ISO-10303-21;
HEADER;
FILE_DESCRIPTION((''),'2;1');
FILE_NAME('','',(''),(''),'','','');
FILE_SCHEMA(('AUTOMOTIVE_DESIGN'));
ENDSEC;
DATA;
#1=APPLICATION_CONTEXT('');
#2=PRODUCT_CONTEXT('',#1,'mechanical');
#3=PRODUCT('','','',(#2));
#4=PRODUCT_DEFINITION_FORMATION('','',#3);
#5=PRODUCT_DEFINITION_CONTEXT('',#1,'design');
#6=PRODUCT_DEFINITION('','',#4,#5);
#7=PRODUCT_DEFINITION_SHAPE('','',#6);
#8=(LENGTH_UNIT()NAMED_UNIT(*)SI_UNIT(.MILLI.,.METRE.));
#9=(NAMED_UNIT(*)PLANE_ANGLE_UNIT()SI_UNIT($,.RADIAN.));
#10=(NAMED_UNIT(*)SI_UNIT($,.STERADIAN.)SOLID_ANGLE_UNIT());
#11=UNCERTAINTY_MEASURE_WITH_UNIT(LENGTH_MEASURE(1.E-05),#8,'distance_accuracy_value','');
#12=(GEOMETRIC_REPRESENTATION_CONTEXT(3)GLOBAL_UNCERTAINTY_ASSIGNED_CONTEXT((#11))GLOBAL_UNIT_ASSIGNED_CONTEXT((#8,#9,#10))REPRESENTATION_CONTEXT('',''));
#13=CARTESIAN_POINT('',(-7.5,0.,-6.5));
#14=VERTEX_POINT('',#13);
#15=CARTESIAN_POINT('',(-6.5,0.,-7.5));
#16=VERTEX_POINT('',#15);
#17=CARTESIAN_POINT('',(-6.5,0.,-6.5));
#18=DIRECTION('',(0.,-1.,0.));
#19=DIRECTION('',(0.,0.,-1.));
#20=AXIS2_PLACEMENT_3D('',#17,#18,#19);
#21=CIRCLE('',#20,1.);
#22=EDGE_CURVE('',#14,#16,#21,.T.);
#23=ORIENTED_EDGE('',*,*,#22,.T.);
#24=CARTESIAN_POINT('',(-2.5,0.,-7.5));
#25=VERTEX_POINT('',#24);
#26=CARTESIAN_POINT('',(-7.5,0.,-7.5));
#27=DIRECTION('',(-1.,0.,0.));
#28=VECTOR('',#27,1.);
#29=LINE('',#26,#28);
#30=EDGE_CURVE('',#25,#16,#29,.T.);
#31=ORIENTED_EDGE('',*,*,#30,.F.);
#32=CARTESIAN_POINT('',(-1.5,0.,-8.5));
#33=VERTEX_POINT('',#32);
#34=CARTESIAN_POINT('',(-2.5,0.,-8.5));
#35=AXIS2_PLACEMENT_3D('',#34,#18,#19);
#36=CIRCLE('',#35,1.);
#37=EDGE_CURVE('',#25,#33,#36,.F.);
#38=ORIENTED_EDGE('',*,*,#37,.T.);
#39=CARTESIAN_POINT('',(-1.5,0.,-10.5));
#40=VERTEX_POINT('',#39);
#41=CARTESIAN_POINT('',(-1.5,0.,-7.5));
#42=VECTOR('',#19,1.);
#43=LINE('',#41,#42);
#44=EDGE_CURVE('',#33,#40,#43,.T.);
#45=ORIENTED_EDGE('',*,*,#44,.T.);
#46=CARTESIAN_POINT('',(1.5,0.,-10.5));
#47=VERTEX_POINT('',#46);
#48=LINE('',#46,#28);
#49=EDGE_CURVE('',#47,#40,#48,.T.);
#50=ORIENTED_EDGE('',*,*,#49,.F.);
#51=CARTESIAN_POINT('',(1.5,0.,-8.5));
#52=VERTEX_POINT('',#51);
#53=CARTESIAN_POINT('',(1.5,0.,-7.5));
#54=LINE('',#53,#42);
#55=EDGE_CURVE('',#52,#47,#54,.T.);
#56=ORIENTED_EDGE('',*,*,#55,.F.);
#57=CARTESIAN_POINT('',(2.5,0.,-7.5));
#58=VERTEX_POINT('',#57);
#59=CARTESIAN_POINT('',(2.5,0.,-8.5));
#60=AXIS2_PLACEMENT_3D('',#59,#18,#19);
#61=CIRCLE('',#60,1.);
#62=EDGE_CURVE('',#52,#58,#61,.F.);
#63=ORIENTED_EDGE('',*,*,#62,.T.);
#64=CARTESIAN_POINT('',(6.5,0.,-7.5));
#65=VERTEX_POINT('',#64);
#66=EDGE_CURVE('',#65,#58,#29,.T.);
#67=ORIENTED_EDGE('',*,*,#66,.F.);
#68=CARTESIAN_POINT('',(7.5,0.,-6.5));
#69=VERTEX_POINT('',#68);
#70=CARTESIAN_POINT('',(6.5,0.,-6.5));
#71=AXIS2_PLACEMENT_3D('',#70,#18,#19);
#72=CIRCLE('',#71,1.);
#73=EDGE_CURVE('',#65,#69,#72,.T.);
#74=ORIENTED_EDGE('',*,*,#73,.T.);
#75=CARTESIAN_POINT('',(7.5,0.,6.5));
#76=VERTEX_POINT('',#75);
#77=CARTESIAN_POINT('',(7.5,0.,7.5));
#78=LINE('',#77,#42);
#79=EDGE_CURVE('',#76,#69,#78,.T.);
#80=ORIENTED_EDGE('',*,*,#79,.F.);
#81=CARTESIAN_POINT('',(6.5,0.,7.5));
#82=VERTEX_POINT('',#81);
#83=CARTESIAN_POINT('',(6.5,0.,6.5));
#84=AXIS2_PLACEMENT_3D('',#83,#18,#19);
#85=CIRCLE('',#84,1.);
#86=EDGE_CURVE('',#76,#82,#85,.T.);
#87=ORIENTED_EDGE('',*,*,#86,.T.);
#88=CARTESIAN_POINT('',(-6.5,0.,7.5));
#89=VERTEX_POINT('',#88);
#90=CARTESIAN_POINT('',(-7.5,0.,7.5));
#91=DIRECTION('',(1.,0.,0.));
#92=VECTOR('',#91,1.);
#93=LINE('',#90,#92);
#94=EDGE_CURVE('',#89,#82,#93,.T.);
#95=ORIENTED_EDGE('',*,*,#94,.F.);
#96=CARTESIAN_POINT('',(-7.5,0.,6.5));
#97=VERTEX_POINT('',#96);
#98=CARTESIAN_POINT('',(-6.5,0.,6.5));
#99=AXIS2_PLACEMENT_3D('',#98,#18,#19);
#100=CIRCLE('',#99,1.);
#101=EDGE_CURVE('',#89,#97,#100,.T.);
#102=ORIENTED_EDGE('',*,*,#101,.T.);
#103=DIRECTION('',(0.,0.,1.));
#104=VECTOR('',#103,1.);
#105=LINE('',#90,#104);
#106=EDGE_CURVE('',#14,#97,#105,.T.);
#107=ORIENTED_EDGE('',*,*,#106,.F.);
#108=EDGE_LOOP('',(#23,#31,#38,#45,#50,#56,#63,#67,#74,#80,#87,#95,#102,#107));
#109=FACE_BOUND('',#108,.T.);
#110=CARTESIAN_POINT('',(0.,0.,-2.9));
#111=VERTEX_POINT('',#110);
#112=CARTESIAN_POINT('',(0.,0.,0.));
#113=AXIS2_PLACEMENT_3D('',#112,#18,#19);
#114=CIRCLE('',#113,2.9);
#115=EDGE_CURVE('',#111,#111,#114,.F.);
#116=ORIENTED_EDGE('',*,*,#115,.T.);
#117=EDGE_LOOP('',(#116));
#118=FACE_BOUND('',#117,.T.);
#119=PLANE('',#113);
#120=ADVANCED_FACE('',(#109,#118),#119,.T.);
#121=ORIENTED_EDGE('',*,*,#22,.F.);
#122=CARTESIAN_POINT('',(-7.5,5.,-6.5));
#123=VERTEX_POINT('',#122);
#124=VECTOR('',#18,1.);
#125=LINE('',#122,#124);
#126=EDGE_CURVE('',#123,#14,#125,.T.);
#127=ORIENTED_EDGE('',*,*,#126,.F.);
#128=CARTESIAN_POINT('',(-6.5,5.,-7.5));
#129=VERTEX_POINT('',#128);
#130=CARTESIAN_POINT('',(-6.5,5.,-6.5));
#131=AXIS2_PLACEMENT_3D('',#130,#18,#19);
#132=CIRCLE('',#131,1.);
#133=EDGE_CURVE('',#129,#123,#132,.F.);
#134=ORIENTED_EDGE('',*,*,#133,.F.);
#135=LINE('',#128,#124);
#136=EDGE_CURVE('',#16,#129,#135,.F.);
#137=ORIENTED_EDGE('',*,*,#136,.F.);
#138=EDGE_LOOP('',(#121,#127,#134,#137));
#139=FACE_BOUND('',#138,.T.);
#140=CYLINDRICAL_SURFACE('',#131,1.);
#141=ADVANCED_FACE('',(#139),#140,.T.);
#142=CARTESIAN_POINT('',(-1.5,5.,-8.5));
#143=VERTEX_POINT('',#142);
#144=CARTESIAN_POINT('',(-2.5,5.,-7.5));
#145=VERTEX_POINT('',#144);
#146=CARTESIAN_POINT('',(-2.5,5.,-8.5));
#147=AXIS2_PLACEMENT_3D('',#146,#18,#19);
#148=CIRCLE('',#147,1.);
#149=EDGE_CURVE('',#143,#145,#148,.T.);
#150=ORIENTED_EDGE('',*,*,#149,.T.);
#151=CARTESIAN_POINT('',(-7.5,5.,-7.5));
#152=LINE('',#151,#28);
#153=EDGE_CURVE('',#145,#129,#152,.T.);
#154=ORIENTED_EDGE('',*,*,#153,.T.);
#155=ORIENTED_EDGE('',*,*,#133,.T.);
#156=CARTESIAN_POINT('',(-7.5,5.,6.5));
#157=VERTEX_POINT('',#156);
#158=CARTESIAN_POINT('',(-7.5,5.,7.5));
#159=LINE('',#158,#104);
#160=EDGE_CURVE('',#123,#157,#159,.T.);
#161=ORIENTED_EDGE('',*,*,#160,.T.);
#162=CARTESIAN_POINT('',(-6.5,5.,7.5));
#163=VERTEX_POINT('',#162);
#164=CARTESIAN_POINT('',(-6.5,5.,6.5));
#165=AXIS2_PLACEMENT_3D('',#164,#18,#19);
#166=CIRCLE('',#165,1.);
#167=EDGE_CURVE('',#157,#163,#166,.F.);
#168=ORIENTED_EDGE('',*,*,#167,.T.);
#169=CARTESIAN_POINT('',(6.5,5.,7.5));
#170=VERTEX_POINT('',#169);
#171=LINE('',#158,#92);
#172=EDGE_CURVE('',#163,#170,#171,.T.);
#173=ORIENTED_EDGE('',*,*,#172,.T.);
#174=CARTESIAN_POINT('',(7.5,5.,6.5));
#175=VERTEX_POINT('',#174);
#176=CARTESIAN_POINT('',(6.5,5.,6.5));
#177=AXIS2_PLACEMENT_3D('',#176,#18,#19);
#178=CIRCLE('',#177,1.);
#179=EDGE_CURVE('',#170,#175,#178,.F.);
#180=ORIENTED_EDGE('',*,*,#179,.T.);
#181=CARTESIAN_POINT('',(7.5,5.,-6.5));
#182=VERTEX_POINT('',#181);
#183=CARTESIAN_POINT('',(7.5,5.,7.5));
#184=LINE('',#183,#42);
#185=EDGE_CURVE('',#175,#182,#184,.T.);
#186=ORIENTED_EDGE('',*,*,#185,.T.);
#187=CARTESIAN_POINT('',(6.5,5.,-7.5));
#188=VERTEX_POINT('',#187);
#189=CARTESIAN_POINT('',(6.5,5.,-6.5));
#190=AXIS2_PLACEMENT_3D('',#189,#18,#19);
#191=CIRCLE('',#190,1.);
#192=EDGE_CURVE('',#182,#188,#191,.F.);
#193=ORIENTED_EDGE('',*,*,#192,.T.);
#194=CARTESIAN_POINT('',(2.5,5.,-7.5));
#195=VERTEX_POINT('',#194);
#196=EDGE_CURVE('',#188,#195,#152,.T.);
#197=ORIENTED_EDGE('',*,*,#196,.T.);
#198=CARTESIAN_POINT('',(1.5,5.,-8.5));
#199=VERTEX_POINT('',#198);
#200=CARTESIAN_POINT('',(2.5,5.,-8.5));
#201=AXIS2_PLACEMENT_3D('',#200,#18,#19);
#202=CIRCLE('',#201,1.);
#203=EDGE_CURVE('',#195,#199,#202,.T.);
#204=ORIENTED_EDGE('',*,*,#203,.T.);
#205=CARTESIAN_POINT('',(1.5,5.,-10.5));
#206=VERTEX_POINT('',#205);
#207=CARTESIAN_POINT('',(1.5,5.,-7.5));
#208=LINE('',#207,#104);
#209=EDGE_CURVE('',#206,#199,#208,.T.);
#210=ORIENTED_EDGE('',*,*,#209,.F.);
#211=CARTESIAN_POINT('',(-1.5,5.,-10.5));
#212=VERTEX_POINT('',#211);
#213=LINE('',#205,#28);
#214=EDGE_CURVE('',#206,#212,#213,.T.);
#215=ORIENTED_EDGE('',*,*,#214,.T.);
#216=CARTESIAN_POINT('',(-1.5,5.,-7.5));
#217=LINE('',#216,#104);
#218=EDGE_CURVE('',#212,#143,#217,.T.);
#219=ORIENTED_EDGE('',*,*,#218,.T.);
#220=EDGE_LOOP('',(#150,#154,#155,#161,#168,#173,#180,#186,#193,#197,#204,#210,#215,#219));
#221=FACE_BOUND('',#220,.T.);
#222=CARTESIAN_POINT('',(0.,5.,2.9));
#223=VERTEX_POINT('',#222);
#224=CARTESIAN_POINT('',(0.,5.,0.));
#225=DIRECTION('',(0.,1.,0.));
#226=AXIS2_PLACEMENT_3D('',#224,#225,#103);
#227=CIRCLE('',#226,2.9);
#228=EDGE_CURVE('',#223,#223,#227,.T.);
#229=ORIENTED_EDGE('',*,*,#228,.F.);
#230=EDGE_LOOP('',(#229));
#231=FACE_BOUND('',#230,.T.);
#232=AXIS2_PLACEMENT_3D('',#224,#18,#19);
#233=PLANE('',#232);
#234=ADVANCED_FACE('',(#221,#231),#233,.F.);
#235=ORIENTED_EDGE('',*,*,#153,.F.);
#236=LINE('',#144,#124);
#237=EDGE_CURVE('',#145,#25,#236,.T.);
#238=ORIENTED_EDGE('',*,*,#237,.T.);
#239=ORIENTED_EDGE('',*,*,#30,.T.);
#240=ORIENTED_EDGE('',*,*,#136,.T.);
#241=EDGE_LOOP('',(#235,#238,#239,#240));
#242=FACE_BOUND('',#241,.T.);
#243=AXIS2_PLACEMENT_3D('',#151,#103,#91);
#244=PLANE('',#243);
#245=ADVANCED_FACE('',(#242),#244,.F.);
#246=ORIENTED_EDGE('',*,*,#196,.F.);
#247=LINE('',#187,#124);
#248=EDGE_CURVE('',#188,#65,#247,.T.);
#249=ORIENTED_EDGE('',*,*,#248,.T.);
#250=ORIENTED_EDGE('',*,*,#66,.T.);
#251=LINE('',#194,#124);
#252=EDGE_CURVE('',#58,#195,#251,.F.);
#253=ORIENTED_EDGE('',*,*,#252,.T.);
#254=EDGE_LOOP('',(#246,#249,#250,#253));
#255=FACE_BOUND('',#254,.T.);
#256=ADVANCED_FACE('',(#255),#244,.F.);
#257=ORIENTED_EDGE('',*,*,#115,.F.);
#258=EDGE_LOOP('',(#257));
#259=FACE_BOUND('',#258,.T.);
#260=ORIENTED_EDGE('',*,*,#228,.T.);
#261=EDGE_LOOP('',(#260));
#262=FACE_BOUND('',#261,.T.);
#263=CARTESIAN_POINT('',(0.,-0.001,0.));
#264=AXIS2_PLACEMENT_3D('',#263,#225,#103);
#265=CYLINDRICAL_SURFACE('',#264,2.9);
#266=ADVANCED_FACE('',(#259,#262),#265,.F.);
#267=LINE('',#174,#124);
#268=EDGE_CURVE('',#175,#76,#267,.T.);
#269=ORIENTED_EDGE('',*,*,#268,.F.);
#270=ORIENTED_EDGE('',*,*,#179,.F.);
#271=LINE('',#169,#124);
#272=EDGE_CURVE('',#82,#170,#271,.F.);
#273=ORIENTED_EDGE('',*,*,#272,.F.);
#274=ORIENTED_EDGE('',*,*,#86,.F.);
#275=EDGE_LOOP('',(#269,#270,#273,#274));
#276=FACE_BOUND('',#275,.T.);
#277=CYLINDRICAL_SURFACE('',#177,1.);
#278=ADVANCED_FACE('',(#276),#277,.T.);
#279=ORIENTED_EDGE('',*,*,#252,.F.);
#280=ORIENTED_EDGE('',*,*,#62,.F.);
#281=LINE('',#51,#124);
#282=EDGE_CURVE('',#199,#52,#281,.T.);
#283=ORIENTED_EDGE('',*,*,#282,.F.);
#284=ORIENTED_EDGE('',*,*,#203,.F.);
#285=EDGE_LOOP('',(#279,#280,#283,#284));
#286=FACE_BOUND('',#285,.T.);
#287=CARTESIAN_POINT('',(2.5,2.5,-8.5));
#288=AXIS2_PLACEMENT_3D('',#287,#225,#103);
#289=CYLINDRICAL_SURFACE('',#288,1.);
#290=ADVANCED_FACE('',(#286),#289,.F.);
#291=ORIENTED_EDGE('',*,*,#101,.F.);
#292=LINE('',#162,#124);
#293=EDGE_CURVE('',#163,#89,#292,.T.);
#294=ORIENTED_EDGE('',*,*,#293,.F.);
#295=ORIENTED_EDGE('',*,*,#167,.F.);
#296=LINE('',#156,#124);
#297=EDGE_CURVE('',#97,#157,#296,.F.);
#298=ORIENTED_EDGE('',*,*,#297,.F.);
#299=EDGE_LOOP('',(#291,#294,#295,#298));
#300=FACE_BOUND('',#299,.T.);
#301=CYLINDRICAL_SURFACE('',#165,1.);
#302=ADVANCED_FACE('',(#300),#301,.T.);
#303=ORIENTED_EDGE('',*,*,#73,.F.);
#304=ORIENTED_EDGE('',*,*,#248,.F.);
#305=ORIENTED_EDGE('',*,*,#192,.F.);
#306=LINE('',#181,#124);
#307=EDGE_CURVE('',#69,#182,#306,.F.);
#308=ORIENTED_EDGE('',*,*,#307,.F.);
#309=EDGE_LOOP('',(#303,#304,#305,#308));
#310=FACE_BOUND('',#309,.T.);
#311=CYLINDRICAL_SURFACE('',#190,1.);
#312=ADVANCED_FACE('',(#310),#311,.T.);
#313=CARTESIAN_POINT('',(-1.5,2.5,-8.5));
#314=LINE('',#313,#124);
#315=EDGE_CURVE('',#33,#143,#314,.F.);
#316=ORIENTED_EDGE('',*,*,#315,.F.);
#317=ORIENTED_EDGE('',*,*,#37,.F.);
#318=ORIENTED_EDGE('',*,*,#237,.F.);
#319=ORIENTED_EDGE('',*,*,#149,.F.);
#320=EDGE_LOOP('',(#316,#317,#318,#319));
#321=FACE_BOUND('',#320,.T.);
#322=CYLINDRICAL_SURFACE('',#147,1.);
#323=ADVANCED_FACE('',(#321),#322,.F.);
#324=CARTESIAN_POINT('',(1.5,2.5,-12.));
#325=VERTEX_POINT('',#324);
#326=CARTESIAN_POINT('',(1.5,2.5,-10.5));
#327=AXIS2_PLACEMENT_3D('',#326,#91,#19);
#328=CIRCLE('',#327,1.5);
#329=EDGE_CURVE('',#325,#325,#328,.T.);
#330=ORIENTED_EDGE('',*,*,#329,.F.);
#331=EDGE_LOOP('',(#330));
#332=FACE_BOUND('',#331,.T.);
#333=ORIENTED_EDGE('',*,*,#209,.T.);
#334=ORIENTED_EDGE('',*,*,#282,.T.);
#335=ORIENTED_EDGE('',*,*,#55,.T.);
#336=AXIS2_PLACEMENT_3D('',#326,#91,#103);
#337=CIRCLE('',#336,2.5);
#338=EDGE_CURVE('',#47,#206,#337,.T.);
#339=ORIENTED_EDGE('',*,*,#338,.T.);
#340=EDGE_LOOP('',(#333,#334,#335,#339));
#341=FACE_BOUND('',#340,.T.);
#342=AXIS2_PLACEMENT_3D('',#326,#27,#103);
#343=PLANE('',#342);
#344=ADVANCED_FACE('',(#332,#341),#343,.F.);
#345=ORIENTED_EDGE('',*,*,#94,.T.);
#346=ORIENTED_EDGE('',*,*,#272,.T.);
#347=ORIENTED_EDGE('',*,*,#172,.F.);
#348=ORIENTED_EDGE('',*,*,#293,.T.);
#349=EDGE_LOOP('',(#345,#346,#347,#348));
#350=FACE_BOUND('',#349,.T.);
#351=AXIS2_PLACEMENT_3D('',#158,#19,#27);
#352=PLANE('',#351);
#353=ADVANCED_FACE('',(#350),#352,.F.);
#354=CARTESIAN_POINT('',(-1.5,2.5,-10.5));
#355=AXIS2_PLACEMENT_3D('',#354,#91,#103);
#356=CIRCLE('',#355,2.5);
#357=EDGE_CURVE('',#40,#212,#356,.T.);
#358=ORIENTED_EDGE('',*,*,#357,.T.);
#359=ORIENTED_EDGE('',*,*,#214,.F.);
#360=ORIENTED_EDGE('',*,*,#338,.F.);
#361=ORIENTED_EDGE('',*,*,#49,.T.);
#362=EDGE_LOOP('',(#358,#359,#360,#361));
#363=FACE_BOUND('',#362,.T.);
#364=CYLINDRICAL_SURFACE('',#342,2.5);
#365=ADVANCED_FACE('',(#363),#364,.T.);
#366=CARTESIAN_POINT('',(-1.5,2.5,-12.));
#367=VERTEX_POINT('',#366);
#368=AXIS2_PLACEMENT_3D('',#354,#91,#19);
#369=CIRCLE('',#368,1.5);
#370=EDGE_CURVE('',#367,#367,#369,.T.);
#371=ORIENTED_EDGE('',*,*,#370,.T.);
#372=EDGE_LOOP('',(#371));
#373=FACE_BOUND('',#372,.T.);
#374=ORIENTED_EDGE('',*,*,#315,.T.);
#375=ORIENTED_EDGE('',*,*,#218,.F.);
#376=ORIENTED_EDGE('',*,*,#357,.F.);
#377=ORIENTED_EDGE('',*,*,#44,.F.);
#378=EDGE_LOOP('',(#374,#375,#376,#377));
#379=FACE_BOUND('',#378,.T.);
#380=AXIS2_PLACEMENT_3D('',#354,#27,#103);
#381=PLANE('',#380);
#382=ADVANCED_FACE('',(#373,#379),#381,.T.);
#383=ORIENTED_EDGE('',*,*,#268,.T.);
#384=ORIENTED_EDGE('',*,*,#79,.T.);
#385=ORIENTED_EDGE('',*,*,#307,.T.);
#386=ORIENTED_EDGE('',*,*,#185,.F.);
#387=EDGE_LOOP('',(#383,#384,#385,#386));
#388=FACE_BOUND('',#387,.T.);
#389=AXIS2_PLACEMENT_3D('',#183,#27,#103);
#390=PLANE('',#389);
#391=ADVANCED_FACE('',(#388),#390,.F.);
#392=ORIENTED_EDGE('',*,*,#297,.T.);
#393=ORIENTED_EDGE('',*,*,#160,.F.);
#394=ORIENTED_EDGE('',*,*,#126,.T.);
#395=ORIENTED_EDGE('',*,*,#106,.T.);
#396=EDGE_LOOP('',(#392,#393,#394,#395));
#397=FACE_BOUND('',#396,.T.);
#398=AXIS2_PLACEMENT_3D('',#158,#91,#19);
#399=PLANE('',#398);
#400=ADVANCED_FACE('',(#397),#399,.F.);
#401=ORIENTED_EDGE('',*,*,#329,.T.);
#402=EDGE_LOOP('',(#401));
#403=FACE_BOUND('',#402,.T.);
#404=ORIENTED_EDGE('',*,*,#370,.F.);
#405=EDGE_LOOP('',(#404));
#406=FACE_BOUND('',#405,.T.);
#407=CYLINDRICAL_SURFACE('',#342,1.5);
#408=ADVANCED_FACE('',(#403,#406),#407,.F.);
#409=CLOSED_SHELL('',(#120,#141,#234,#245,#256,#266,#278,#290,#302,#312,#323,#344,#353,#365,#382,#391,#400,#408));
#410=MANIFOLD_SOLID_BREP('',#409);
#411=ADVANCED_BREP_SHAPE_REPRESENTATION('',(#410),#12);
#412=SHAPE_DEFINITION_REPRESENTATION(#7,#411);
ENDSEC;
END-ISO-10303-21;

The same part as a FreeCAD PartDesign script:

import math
import FreeCAD as App
import Part
import Sketcher
Q = App.Units.Quantity


def edges_at(feature, points):
    """Names of the edges that pass closest to the given points."""
    edges = feature.Shape.Edges
    near = lambda p: min(range(len(edges)), key=lambda i: edges[i].distToShape(Part.Vertex(*p))[0])
    return sorted({f"Edge{near(p) + 1}" for p in points})

doc = App.newDocument("Part")
body = doc.addObject("PartDesign::Body", "Body")

# Sketch on XZ plane
sketch1 = body.newObject("Sketcher::SketchObject", "Sketch")
sketch1.AttachmentSupport = (doc.getObject("XZ_Plane"), [""])
sketch1.MapMode = "FlatFace"
sketch1.addGeometry(Part.LineSegment(App.Vector(-7.5, -7.5, 0), App.Vector(-7.5, 7.5, 0)), False)
sketch1.addGeometry(Part.LineSegment(App.Vector(-7.5, 7.5, 0), App.Vector(7.5, 7.5, 0)), False)
sketch1.addGeometry(Part.LineSegment(App.Vector(7.5, 7.5, 0), App.Vector(7.5, -7.5, 0)), False)
sketch1.addGeometry(Part.LineSegment(App.Vector(7.5, -7.5, 0), App.Vector(-7.5, -7.5, 0)), False)
sketch1.addConstraint(Sketcher.Constraint("Coincident", 0, 2, 1, 1))
sketch1.addConstraint(Sketcher.Constraint("Coincident", 1, 2, 2, 1))
sketch1.addConstraint(Sketcher.Constraint("Coincident", 2, 2, 3, 1))
sketch1.addConstraint(Sketcher.Constraint("Coincident", 3, 2, 0, 1))
sketch1.addConstraint(Sketcher.Constraint("Vertical", 0))
sketch1.addConstraint(Sketcher.Constraint("Horizontal", 1))
sketch1.addConstraint(Sketcher.Constraint("Vertical", 2))
sketch1.addConstraint(Sketcher.Constraint("Horizontal", 3))
sketch1.addConstraint(Sketcher.Constraint("Symmetric", 0, 2, 2, 2, -1, 1))
sketch1.addConstraint(Sketcher.Constraint("Equal", 3, 0))
sketch1.addConstraint(Sketcher.Constraint("DistanceX", 1, 1, 1, 2, Q("15 mm")))
pad1 = body.newObject("PartDesign::Pad", "Pad")
pad1.Profile = sketch1
pad1.Length = 5
pad1.Reversed = True

# Sketch on YZ plane
sketch2 = body.newObject("Sketcher::SketchObject", "Sketch001")
sketch2.AttachmentSupport = (doc.getObject("YZ_Plane"), [""])
sketch2.MapMode = "FlatFace"
sketch2.addGeometry(Part.LineSegment(App.Vector(5, -10.5, 0), App.Vector(5, -7.5, 0)), False)
sketch2.addGeometry(Part.LineSegment(App.Vector(5, -7.5, 0), App.Vector(0, -7.5, 0)), False)
sketch2.addGeometry(Part.LineSegment(App.Vector(0, -7.5, 0), App.Vector(0, -10.5, 0)), False)
sketch2.addGeometry(Part.ArcOfCircle(Part.Circle(App.Vector(2.5, -10.5, 0), App.Vector(0, 0, 1), 2.5), math.radians(180), math.radians(360)), False)
sketch2.addGeometry(Part.Circle(App.Vector(2.5, -10.5, 0), App.Vector(0, 0, 1), 1.5), False)
sketch2.addConstraint(Sketcher.Constraint("Coincident", 0, 2, 1, 1))
sketch2.addConstraint(Sketcher.Constraint("Coincident", 1, 2, 2, 1))
sketch2.addConstraint(Sketcher.Constraint("Tangent", 2, 2, 3, 1))
sketch2.addConstraint(Sketcher.Constraint("Tangent", 3, 2, 0, 1))
sketch2.addConstraint(Sketcher.Constraint("Vertical", 0))
sketch2.addConstraint(Sketcher.Constraint("Horizontal", 1))
sketch2.addConstraint(Sketcher.Constraint("Vertical", 2))
sketch2.addConstraint(Sketcher.Constraint("Coincident", 4, 3, 3, 3))
sketch2.addConstraint(Sketcher.Constraint("PointOnObject", 1, 2, -2))
sketch2.addConstraint(Sketcher.Constraint("Diameter", 4, Q("3 mm")))
sketch2.addConstraint(Sketcher.Constraint("Radius", 3, Q("2.5 mm")))
sketch2.addConstraint(Sketcher.Constraint("DistanceY", 0, 1, 0, 2, Q("3 mm")))
sketch2.addConstraint(Sketcher.Constraint("DistanceY", 3, 3, -1, 1, Q("10.5 mm")))
pad2 = body.newObject("PartDesign::Pad", "Pad001")
pad2.Profile = sketch2
pad2.Length = 3
pad2.Midplane = True

# Sketch on XZ plane
sketch3 = body.newObject("Sketcher::SketchObject", "Sketch002")
sketch3.AttachmentSupport = (doc.getObject("XZ_Plane"), [""])
sketch3.MapMode = "FlatFace"
sketch3.AttachmentOffset = App.Placement(App.Vector(0, 0, -5), App.Rotation())
sketch3.addGeometry(Part.Circle(App.Vector(0, 0, 0), App.Vector(0, 0, 1), 2.9), False)
sketch3.addConstraint(Sketcher.Constraint("Coincident", 0, 3, -1, 1))
sketch3.addConstraint(Sketcher.Constraint("Diameter", 0, Q("5.8 mm")))
pocket1 = body.newObject("PartDesign::Pocket", "Pocket")
pocket1.Profile = sketch3
pocket1.Type = "UpToFirst"
pocket1.Reversed = True
doc.recompute()

fillet = body.newObject("PartDesign::Fillet", "Fillet")
fillet.Base = (pocket1, edges_at(pocket1, [
    (1.5, 2.5, -7.5),
    (-1.5, 2.5, -7.5),
    (7.5, 2.5, 7.5),
    (-7.5, 2.5, 7.5),
    (-7.5, 2.5, -7.5),
    (7.5, 2.5, -7.5),
]))
fillet.Radius = 1

doc.recompute()
